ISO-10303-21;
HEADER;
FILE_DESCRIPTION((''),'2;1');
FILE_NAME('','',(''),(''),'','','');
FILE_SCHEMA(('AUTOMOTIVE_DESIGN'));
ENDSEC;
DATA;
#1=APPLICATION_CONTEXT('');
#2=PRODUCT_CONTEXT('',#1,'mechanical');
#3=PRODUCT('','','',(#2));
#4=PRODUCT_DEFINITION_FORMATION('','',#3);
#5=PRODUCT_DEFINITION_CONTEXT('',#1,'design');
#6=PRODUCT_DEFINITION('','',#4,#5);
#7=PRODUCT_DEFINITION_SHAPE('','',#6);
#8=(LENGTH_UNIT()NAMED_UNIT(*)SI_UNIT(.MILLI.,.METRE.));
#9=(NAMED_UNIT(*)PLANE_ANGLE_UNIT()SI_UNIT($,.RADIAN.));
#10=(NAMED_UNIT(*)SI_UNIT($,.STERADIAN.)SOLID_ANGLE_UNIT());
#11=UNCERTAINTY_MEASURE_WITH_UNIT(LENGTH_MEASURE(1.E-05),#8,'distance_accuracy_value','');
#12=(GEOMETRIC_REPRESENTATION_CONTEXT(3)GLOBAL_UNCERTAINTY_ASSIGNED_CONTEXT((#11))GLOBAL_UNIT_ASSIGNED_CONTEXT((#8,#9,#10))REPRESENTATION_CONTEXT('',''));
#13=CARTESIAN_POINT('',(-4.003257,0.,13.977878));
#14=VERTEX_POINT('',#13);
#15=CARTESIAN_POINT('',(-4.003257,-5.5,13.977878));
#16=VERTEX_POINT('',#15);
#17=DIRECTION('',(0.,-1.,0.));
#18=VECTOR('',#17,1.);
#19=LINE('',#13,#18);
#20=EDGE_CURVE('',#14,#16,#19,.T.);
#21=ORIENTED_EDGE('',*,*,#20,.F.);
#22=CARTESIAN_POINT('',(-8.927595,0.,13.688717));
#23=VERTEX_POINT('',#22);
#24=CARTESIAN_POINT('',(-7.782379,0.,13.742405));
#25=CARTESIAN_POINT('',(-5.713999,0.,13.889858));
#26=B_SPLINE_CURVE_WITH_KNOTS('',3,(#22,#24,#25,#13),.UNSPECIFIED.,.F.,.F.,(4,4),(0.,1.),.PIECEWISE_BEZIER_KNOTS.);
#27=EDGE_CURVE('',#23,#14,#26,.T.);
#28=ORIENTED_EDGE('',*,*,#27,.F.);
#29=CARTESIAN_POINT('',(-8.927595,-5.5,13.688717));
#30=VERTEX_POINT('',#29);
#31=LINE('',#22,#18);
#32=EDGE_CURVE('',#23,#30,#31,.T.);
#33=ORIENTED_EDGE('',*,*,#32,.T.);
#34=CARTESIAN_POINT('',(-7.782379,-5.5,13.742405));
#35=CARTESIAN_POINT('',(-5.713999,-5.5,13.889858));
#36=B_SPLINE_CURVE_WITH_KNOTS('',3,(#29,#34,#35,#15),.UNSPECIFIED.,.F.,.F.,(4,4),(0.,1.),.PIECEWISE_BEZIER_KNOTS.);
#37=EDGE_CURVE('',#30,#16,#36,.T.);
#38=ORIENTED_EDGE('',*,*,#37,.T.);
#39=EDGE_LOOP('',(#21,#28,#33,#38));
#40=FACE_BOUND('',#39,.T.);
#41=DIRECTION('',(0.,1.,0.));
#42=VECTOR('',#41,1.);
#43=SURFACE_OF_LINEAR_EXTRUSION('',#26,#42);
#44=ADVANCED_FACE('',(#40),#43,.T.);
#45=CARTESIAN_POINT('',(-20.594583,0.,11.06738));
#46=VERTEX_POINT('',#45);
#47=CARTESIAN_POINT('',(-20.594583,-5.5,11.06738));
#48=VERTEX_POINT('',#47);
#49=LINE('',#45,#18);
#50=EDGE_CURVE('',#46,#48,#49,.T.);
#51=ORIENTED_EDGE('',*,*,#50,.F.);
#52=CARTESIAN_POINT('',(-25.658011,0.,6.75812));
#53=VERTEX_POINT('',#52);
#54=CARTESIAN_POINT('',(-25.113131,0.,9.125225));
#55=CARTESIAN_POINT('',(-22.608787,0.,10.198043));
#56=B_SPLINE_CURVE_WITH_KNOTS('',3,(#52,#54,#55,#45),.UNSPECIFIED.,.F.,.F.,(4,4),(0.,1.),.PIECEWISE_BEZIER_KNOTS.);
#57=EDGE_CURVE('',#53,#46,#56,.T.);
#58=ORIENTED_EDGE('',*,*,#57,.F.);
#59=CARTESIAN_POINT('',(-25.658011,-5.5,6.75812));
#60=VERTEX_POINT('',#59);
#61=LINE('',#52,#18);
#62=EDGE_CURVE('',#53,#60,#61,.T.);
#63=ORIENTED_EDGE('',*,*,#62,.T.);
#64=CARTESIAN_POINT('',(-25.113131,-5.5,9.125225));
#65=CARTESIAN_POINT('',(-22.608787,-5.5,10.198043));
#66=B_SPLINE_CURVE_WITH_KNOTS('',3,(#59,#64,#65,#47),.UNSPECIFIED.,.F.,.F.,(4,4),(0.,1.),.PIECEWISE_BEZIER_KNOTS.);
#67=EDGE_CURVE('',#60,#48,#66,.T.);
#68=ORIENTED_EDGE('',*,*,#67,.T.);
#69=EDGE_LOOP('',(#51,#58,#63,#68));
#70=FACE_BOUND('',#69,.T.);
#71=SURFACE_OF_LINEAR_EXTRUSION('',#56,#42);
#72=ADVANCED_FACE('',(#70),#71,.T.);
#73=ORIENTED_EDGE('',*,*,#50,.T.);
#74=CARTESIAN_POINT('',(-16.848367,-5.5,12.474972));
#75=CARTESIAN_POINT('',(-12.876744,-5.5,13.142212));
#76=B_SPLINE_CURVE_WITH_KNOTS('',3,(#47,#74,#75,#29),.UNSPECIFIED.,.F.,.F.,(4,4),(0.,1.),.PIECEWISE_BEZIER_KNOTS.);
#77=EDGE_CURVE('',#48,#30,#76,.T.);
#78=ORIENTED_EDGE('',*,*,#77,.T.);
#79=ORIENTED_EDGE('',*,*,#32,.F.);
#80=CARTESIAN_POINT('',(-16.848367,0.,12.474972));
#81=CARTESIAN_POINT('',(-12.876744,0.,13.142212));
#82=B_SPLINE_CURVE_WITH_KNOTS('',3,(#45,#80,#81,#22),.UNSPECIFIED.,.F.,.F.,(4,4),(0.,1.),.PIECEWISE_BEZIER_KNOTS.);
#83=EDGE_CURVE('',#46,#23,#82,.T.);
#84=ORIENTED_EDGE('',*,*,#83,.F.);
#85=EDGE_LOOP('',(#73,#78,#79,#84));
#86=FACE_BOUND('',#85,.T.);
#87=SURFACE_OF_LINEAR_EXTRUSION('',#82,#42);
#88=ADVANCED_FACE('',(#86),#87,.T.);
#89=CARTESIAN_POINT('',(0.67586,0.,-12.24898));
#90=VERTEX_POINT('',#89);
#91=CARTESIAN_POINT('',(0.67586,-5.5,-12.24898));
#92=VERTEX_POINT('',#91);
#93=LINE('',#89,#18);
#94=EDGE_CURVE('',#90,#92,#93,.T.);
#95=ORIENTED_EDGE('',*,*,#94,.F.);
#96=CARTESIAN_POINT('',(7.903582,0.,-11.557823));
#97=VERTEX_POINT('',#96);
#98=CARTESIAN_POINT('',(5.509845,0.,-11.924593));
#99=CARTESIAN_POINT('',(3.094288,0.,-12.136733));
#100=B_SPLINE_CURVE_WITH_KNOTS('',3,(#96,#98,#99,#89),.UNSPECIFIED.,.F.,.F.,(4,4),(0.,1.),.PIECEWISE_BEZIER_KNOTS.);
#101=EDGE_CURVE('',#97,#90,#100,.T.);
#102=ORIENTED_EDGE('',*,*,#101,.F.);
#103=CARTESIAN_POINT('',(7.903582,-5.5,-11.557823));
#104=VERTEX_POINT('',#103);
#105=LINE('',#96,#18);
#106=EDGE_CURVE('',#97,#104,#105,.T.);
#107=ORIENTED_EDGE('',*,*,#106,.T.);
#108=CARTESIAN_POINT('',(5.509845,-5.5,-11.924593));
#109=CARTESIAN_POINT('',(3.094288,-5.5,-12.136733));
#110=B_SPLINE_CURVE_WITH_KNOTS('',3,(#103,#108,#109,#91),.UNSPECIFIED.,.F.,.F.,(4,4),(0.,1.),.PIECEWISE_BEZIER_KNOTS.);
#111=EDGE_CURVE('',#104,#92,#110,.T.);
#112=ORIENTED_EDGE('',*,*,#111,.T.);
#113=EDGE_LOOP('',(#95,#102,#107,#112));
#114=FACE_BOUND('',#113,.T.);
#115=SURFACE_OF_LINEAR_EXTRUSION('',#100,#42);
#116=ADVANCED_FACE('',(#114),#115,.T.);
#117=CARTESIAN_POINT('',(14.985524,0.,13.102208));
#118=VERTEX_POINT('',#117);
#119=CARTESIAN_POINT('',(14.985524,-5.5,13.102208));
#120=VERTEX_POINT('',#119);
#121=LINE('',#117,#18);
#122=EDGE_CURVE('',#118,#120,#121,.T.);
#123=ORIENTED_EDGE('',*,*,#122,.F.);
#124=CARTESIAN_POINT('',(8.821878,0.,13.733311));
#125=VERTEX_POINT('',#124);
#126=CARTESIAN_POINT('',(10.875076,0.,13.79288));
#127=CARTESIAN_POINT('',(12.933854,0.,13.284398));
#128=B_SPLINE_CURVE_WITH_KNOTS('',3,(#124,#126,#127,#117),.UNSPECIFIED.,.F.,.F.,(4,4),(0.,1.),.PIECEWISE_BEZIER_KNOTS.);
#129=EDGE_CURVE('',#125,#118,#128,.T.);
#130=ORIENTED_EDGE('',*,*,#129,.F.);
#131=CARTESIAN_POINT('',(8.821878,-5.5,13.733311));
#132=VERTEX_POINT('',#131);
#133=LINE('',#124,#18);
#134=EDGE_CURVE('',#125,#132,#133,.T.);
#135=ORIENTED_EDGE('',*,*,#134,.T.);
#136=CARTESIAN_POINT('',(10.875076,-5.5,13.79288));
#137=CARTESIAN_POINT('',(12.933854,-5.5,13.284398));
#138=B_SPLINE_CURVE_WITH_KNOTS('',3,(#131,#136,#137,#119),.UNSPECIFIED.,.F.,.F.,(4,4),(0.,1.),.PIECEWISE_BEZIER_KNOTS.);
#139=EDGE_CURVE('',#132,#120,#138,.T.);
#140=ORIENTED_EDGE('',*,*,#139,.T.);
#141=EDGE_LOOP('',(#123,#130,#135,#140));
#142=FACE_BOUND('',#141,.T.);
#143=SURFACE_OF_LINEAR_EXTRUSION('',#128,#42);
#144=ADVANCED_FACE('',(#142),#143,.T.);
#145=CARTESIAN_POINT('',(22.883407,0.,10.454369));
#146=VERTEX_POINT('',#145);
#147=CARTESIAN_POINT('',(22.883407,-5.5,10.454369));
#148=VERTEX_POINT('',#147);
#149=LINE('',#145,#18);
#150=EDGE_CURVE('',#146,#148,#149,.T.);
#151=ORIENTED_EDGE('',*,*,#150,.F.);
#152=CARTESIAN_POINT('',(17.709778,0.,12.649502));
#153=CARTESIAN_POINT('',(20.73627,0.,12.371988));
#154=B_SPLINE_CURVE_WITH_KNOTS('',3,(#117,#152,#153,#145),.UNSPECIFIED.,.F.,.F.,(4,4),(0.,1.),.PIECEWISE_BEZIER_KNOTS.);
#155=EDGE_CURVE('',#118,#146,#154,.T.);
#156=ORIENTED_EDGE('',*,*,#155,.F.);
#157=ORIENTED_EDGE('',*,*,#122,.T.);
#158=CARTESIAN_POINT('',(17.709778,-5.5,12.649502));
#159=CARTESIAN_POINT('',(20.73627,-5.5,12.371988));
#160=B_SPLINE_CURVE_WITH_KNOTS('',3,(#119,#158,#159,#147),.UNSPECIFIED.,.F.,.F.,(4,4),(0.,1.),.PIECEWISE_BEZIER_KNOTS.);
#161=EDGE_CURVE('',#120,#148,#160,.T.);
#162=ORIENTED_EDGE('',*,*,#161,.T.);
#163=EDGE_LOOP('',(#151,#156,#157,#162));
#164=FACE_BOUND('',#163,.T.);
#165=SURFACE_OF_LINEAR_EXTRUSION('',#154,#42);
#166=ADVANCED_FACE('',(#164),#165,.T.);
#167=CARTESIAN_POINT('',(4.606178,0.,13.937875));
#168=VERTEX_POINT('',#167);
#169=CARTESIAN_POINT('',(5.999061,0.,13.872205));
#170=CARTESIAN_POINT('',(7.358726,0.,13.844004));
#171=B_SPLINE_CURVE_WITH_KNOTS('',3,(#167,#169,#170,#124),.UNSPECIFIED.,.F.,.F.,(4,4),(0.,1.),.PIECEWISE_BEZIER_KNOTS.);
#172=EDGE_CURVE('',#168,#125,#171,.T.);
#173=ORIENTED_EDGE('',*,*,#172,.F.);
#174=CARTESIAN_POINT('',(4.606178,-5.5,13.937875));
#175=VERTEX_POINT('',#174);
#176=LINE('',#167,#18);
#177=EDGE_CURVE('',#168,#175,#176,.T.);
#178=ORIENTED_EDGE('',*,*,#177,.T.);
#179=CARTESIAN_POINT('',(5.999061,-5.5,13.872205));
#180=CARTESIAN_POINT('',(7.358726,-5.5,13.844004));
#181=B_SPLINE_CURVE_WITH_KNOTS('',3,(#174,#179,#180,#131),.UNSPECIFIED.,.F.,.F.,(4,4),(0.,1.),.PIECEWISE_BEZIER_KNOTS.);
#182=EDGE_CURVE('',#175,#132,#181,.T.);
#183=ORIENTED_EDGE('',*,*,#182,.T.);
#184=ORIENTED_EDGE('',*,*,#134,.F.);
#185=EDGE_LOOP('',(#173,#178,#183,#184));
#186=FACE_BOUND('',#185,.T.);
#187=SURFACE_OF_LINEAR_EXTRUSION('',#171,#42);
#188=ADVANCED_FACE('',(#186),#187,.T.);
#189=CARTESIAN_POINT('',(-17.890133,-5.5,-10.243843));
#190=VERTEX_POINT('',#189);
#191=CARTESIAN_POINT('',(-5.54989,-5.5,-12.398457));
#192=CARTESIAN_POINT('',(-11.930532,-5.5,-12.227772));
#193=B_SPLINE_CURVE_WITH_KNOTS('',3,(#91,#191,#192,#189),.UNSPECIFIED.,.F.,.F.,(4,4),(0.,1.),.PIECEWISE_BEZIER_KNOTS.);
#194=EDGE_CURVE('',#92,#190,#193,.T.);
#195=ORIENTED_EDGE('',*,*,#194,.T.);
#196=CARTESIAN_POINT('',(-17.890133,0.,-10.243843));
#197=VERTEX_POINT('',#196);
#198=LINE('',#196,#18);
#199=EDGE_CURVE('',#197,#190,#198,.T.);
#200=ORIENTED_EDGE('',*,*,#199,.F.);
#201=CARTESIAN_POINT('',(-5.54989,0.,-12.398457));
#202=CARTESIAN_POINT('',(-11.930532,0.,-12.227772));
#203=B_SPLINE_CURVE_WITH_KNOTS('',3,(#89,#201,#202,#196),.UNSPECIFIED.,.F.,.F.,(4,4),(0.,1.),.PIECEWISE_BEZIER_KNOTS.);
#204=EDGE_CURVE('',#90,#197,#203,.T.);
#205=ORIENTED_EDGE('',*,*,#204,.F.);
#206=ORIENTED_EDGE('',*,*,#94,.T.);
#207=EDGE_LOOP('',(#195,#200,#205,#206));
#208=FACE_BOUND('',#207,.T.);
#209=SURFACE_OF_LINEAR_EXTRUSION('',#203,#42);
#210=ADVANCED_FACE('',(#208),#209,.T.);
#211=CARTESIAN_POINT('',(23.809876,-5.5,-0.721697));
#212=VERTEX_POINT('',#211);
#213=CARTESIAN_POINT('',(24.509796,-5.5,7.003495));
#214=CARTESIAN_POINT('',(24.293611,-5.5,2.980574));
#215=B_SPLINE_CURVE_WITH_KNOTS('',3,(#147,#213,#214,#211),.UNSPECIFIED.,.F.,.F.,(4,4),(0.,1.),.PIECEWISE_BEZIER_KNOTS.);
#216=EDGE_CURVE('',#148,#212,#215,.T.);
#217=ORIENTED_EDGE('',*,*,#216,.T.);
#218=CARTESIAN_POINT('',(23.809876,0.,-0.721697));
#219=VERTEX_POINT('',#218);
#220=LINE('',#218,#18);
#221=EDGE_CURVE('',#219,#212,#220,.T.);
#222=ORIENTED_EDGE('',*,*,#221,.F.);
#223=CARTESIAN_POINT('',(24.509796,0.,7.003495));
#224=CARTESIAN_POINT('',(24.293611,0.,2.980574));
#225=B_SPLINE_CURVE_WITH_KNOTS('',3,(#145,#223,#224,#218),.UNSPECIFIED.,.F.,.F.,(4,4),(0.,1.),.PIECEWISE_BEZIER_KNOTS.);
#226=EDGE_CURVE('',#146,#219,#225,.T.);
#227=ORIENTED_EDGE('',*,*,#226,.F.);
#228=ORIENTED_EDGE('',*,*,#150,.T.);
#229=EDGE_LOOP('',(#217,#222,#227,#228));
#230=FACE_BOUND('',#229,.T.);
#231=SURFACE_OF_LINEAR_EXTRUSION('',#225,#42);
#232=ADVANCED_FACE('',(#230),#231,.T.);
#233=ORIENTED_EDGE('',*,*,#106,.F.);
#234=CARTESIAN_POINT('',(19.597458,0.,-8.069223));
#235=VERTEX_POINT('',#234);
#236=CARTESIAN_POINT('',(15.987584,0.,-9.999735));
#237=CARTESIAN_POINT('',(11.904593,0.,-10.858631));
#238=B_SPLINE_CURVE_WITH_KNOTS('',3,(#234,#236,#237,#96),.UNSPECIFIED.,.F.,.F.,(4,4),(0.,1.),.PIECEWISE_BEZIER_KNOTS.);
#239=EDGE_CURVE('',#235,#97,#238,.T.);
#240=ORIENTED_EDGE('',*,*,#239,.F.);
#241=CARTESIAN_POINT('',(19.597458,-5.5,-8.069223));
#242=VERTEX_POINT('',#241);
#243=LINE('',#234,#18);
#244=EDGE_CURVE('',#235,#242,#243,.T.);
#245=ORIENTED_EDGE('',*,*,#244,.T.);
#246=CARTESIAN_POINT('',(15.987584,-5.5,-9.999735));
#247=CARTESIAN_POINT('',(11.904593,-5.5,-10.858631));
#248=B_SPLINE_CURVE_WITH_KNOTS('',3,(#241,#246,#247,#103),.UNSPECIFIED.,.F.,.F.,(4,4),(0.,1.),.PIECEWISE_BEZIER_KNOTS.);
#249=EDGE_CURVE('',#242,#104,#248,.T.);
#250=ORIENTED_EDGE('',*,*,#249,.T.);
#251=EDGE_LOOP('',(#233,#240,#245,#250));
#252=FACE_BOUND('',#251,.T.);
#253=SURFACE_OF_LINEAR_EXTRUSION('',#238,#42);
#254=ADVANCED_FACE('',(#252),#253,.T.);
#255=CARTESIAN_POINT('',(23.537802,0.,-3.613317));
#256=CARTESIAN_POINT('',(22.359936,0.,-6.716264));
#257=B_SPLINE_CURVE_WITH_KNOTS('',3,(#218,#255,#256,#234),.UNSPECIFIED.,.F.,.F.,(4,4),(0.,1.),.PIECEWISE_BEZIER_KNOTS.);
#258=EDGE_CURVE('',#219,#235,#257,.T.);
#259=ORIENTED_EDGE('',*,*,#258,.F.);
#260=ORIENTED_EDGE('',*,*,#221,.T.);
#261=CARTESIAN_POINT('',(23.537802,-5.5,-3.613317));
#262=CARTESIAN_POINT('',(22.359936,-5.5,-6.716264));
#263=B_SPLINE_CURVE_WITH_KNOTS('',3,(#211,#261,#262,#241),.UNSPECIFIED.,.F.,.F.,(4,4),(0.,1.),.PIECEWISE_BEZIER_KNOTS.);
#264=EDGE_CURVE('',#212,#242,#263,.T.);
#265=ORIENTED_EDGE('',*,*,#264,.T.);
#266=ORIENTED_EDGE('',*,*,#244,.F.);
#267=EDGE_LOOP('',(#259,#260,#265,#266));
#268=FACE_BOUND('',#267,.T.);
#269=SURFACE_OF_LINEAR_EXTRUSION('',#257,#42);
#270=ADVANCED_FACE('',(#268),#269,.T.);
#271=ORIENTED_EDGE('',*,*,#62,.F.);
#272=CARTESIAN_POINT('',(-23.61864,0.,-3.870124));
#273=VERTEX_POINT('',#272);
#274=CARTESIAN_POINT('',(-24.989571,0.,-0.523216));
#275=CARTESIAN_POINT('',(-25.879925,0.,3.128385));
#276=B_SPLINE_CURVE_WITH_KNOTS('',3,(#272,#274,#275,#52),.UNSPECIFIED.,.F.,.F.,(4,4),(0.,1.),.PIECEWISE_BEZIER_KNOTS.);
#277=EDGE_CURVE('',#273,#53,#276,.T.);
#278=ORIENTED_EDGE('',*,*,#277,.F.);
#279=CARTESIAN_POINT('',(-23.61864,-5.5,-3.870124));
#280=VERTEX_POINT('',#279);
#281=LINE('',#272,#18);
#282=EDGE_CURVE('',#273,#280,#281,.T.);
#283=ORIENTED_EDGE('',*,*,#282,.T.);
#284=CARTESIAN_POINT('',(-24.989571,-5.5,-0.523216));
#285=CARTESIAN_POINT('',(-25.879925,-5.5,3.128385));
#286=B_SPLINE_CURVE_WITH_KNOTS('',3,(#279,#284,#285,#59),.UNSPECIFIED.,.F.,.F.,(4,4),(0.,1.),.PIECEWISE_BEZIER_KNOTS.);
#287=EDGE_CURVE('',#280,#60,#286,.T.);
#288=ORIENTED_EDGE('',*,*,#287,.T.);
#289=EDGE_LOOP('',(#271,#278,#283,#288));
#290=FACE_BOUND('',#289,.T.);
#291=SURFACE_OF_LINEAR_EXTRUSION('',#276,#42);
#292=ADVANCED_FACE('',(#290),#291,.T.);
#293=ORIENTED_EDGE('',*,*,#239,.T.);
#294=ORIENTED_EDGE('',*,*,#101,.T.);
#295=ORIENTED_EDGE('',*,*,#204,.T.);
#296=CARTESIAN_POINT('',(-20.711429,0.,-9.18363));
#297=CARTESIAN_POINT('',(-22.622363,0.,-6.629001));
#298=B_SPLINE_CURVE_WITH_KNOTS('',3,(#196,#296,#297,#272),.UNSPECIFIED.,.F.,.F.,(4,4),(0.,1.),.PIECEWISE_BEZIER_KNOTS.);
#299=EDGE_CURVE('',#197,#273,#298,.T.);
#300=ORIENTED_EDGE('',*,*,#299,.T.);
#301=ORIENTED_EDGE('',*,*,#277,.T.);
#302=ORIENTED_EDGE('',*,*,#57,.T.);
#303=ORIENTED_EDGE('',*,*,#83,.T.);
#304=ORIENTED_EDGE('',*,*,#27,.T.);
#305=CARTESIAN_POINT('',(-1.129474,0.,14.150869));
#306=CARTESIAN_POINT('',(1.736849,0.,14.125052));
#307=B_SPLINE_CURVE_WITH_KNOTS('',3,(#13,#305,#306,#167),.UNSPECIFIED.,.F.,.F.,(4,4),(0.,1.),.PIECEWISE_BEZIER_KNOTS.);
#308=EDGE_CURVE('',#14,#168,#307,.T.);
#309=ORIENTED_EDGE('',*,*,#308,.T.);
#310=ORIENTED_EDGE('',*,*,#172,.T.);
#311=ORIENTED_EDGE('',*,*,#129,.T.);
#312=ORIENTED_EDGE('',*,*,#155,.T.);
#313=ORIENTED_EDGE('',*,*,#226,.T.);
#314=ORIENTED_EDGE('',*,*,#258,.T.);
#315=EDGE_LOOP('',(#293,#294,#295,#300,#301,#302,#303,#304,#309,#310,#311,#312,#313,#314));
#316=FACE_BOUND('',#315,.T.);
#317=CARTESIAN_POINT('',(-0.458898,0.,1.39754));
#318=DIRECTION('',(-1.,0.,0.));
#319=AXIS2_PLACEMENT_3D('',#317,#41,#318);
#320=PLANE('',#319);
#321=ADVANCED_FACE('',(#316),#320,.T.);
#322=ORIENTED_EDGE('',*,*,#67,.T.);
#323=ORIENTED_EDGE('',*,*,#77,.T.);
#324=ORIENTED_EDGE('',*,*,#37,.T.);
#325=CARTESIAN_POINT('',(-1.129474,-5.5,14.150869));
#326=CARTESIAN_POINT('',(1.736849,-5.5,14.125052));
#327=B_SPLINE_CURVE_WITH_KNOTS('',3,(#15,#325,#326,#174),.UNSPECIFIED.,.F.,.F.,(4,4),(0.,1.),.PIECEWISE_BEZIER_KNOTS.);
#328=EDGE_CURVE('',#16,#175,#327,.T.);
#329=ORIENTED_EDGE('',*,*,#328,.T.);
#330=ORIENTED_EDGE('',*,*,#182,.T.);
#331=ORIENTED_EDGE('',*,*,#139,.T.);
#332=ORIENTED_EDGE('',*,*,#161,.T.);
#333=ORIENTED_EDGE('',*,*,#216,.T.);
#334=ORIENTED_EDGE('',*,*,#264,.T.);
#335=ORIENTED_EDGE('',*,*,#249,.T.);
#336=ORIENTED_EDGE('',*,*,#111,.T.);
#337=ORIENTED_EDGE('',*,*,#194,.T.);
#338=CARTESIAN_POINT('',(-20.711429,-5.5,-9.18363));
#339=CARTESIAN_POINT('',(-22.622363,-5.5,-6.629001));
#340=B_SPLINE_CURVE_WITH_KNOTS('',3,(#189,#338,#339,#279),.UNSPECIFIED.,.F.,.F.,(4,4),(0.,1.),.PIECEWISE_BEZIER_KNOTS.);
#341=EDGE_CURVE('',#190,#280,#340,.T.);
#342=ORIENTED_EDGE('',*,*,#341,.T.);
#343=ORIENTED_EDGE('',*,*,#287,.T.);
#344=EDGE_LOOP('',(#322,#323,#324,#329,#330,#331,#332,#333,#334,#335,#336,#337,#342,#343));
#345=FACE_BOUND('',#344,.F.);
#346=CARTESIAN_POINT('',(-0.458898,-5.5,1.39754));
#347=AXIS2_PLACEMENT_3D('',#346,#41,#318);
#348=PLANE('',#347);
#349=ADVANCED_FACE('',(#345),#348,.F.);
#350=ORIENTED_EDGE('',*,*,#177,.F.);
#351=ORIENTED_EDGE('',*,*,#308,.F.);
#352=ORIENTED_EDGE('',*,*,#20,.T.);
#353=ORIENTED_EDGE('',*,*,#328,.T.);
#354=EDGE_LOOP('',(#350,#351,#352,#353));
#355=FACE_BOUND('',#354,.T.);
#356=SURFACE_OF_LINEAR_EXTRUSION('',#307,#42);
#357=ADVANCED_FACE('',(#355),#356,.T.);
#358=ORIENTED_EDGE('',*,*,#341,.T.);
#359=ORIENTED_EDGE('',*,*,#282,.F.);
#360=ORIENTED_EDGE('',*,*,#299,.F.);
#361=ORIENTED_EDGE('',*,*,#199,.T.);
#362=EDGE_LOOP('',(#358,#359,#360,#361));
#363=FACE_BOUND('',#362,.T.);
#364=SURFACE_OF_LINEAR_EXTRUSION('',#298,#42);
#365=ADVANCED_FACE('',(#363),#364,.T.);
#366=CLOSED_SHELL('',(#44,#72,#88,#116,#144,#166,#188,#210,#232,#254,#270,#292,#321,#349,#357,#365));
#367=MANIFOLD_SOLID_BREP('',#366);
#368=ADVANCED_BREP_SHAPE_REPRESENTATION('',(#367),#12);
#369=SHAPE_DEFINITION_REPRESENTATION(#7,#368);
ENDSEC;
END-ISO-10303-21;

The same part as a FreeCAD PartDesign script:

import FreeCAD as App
import Part
import Sketcher
from FreeCAD import Vector

doc = App.newDocument("Part")
body = doc.addObject("PartDesign::Body", "Body")

# Sketch on XZ plane
sketch1 = body.newObject("Sketcher::SketchObject", "Sketch")
sketch1.AttachmentSupport = (doc.getObject("XZ_Plane"), [""])
sketch1.MapMode = "FlatFace"
sketch1.addGeometry([
    Part.BSplineCurve([Vector(0.67586, -12.24898, 0), Vector(-5.54989, -12.398457, 0), Vector(-11.930532, -12.227772, 0), Vector(-17.890133, -10.243843, 0)], [4, 4], [0, 1], False, 3, [1, 1, 1, 1], False),  # 0
    Part.BSplineCurve([Vector(7.903582, -11.557823, 0), Vector(5.509845, -11.924593, 0), Vector(3.094288, -12.136733, 0), Vector(0.67586, -12.24898, 0)], [4, 4], [0, 1], False, 3, [1, 1, 1, 1], False),  # 1
    Part.BSplineCurve([Vector(19.597458, -8.069223, 0), Vector(15.987584, -9.999735, 0), Vector(11.904593, -10.858631, 0), Vector(7.903582, -11.557823, 0)], [4, 4], [0, 1], False, 3, [1, 1, 1, 1], False),  # 2
    Part.BSplineCurve([Vector(23.809876, -0.721697, 0), Vector(23.537802, -3.613317, 0), Vector(22.359936, -6.716264, 0), Vector(19.597458, -8.069223, 0)], [4, 4], [0, 1], False, 3, [1, 1, 1, 1], False),  # 3
    Part.BSplineCurve([Vector(22.883407, 10.454369, 0), Vector(24.509796, 7.003495, 0), Vector(24.293611, 2.980574, 0), Vector(23.809876, -0.721697, 0)], [4, 4], [0, 1], False, 3, [1, 1, 1, 1], False),  # 4
    Part.BSplineCurve([Vector(14.985524, 13.102208, 0), Vector(17.709778, 12.649502, 0), Vector(20.73627, 12.371988, 0), Vector(22.883407, 10.454369, 0)], [4, 4], [0, 1], False, 3, [1, 1, 1, 1], False),  # 5
    Part.BSplineCurve([Vector(8.821878, 13.733311, 0), Vector(10.875076, 13.79288, 0), Vector(12.933854, 13.284398, 0), Vector(14.985524, 13.102208, 0)], [4, 4], [0, 1], False, 3, [1, 1, 1, 1], False),  # 6
    Part.BSplineCurve([Vector(4.606178, 13.937875, 0), Vector(5.999061, 13.872205, 0), Vector(7.358726, 13.844004, 0), Vector(8.821878, 13.733311, 0)], [4, 4], [0, 1], False, 3, [1, 1, 1, 1], False),  # 7
    Part.BSplineCurve([Vector(-4.003257, 13.977878, 0), Vector(-1.129474, 14.150869, 0), Vector(1.736849, 14.125052, 0), Vector(4.606178, 13.937875, 0)], [4, 4], [0, 1], False, 3, [1, 1, 1, 1], False),  # 8
    Part.BSplineCurve([Vector(-8.927595, 13.688717, 0), Vector(-7.782379, 13.742405, 0), Vector(-5.713999, 13.889858, 0), Vector(-4.003257, 13.977878, 0)], [4, 4], [0, 1], False, 3, [1, 1, 1, 1], False),  # 9
    Part.BSplineCurve([Vector(-20.594583, 11.06738, 0), Vector(-16.848367, 12.474972, 0), Vector(-12.876744, 13.142212, 0), Vector(-8.927595, 13.688717, 0)], [4, 4], [0, 1], False, 3, [1, 1, 1, 1], False),  # 10
    Part.BSplineCurve([Vector(-25.658011, 6.75812, 0), Vector(-25.113131, 9.125225, 0), Vector(-22.608787, 10.198043, 0), Vector(-20.594583, 11.06738, 0)], [4, 4], [0, 1], False, 3, [1, 1, 1, 1], False),  # 11
    Part.BSplineCurve([Vector(-23.61864, -3.870124, 0), Vector(-24.989571, -0.523216, 0), Vector(-25.879925, 3.128385, 0), Vector(-25.658011, 6.75812, 0)], [4, 4], [0, 1], False, 3, [1, 1, 1, 1], False),  # 12
    Part.BSplineCurve([Vector(-17.890133, -10.243843, 0), Vector(-20.711429, -9.18363, 0), Vector(-22.622363, -6.629001, 0), Vector(-23.61864, -3.870124, 0)], [4, 4], [0, 1], False, 3, [1, 1, 1, 1], False),  # 13
], False)
sketch1.addConstraint([
    Sketcher.Constraint("Block", 0),
    Sketcher.Constraint("Block", 1),
    Sketcher.Constraint("Block", 2),
    Sketcher.Constraint("Block", 3),
    Sketcher.Constraint("Block", 4),
    Sketcher.Constraint("Block", 5),
    Sketcher.Constraint("Block", 6),
    Sketcher.Constraint("Block", 7),
    Sketcher.Constraint("Block", 8),
    Sketcher.Constraint("Block", 9),
    Sketcher.Constraint("Block", 10),
    Sketcher.Constraint("Block", 11),
    Sketcher.Constraint("Block", 12),
    Sketcher.Constraint("Block", 13),
])
pad1 = body.newObject("PartDesign::Pad", "Pad")
pad1.Profile = sketch1
pad1.Length = 5.5

doc.recompute()
